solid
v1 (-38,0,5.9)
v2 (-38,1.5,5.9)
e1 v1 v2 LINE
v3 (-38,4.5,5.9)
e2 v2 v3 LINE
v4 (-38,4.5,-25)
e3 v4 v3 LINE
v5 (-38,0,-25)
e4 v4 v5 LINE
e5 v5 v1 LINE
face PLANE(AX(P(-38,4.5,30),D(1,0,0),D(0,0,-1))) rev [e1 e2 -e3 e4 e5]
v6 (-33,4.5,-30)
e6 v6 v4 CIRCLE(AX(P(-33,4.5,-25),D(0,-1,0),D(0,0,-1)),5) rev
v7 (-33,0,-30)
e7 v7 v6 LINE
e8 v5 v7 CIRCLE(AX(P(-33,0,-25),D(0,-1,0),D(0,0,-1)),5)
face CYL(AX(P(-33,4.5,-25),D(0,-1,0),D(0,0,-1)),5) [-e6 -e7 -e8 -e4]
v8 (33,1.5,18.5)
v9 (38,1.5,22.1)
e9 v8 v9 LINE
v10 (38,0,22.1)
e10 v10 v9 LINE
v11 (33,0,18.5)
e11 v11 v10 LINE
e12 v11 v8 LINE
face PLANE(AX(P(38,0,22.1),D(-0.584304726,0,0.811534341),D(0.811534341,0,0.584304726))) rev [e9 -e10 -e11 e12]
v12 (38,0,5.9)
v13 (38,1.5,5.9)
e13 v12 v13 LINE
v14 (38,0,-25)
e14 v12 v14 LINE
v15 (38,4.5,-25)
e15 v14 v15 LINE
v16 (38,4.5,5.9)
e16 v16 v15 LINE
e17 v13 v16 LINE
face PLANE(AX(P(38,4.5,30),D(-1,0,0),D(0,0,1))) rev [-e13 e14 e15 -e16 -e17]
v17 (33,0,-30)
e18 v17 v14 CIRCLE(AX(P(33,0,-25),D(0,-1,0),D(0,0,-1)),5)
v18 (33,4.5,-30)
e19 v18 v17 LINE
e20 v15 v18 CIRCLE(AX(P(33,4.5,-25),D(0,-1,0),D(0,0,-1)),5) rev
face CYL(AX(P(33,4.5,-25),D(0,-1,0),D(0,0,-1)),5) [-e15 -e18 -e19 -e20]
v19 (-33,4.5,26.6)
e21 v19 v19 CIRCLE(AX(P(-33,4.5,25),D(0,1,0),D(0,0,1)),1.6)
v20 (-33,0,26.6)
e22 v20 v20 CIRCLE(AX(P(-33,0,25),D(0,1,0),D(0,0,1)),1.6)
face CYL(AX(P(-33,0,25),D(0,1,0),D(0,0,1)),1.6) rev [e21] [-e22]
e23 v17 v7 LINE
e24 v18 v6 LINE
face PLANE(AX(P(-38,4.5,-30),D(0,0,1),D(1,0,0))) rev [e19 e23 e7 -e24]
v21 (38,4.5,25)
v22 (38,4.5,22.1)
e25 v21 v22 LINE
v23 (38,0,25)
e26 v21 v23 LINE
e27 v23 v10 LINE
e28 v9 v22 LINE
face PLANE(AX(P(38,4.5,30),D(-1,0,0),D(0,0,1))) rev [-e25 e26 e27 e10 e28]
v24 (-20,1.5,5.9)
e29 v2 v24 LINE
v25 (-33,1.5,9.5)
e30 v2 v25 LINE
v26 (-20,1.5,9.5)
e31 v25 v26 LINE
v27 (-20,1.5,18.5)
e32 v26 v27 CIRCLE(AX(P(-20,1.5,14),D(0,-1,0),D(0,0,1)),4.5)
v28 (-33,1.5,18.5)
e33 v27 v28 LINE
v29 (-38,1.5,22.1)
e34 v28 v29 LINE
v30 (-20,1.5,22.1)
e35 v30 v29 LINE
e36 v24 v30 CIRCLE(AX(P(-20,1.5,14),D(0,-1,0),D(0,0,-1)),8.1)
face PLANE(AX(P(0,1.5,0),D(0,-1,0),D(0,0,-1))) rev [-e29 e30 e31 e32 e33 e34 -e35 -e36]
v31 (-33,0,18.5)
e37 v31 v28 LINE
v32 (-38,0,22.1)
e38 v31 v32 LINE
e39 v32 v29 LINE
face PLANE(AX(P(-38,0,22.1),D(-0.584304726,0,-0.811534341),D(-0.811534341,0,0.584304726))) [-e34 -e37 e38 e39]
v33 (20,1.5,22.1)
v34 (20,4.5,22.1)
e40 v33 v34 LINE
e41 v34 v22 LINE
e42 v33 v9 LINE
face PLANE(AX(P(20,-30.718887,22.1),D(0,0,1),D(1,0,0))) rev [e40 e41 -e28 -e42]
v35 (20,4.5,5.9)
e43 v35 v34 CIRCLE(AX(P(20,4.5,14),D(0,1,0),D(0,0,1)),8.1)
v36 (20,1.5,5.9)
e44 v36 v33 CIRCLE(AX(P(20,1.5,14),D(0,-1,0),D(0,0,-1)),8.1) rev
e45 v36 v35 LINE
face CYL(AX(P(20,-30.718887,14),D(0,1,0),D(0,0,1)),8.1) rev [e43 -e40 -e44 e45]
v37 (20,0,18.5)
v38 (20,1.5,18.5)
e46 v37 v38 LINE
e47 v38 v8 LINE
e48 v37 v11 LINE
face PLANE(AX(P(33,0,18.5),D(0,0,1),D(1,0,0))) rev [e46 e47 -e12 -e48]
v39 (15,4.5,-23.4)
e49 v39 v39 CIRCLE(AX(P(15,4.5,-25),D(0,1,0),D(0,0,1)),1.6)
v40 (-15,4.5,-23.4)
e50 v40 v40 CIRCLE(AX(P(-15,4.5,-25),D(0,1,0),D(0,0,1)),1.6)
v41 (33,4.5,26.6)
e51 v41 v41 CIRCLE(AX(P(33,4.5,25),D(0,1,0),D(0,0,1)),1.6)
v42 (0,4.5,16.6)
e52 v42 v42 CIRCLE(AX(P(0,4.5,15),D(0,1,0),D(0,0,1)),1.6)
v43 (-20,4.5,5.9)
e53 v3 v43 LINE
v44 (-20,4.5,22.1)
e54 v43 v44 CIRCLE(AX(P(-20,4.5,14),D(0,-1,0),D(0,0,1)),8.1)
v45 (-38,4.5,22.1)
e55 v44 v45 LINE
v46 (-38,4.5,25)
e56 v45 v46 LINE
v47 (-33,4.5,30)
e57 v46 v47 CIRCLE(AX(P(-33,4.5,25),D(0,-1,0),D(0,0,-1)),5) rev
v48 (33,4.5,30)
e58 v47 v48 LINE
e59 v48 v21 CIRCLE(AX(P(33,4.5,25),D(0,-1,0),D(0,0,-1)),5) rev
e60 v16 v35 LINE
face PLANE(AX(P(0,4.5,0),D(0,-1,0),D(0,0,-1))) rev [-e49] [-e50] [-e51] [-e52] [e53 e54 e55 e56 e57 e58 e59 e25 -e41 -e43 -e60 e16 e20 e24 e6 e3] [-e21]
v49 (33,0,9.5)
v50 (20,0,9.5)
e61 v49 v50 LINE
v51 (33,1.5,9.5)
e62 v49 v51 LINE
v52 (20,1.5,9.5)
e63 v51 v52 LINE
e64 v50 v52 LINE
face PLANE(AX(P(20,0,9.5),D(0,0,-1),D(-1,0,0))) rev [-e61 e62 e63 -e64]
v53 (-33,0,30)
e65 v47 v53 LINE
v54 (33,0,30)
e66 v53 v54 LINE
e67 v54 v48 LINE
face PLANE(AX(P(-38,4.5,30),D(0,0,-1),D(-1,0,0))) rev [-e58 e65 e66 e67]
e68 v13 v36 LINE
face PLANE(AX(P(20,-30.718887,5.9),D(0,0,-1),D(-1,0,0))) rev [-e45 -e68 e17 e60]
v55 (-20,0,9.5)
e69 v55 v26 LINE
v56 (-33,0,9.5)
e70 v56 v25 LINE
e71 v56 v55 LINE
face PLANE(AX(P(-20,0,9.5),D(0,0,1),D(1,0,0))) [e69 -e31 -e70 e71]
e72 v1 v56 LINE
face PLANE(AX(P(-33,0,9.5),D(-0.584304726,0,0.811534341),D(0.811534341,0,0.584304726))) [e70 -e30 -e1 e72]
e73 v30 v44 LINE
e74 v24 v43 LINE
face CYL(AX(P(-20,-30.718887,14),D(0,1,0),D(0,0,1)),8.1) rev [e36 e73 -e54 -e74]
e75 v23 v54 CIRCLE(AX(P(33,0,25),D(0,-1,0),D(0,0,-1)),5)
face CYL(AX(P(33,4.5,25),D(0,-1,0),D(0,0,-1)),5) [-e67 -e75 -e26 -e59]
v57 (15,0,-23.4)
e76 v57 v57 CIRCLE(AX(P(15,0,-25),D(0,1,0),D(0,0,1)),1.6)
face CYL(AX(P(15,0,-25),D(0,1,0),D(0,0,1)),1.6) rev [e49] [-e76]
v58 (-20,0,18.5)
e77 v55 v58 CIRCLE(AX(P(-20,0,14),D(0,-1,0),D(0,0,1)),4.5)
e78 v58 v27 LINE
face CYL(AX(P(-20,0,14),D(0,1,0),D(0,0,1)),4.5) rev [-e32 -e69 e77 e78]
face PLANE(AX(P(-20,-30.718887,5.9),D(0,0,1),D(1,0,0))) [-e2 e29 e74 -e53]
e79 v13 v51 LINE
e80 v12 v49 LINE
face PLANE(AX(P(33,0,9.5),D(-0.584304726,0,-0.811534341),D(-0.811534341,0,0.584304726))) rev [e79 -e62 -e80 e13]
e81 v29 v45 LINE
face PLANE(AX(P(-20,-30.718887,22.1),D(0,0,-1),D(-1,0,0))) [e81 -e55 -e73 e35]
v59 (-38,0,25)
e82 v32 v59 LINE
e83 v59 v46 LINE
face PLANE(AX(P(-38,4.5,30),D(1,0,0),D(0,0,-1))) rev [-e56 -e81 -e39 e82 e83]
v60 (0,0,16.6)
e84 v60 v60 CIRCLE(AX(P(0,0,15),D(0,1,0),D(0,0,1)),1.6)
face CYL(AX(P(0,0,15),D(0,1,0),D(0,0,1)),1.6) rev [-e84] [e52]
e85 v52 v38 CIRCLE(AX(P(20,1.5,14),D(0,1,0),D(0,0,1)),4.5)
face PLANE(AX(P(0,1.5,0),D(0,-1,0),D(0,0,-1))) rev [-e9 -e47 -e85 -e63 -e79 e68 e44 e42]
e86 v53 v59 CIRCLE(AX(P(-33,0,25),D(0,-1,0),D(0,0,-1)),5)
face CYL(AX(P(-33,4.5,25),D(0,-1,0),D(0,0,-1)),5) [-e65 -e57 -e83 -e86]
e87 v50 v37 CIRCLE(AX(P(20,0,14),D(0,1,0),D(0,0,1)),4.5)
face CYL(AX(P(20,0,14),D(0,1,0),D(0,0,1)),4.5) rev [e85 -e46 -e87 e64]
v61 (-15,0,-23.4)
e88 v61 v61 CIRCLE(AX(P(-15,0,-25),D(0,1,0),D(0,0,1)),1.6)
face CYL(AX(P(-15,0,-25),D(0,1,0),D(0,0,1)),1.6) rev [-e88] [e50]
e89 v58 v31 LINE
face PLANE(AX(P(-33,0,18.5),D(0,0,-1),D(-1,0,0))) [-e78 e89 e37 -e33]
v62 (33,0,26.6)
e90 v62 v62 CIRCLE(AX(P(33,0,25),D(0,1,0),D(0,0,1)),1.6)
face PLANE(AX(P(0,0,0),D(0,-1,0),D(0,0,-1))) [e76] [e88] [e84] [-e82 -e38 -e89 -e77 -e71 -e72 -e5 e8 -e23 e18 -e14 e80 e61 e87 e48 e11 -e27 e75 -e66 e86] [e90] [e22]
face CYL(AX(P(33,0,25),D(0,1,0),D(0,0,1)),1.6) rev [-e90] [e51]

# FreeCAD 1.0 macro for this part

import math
import FreeCAD as App
import Part
import Sketcher
from FreeCAD import Vector


def edges_at(feature, points):
    """Names of the edges that pass closest to the given points."""
    edges = feature.Shape.Edges
    near = lambda p: min(range(len(edges)), key=lambda i: edges[i].distToShape(Part.Vertex(*p))[0])
    return sorted({f"Edge{near(p) + 1}" for p in points})


def add_polygon(sketch, points):
    """Adds a closed chain of lines whose ends are joined by coincident constraints."""
    first, n = sketch.GeometryCount, len(points)
    for a, b in zip(points, points[1:] + points[:1]):
        sketch.addGeometry(Part.LineSegment(App.Vector(*a, 0), App.Vector(*b, 0)), False)
    for i in range(n):
        sketch.addConstraint(Sketcher.Constraint("Coincident", first + i, 2, first + (i + 1) % n, 1))

doc = App.newDocument("Part")
body = doc.addObject("PartDesign::Body", "Body")

sketch1 = body.newObject("Sketcher::SketchObject", "Sketch")
sketch1.AttachmentSupport = (doc.getObject("XZ_Plane"), [""])
sketch1.MapMode = "FlatFace"
add_polygon(sketch1, [(-38, -30), (-38, 30), (38, 30), (38, -30)])
sketch1.addConstraint([
    Sketcher.Constraint("Vertical", 0),
    Sketcher.Constraint("Horizontal", 1),
    Sketcher.Constraint("Vertical", 2),
    Sketcher.Constraint("Horizontal", 3),
    Sketcher.Constraint("Symmetric", 0, 2, 2, 2, -1, 1),
    Sketcher.Constraint("DistanceX", 1, 1, 1, 2, 76.0),
    Sketcher.Constraint("DistanceY", 0, 1, 0, 2, 60.0),
])
pad1 = body.newObject("PartDesign::Pad", "Pad")
pad1.Profile = sketch1
pad1.Length = 4.5
pad1.Reversed = True

sketch2 = body.newObject("Sketcher::SketchObject", "Sketch001")
sketch2.AttachmentSupport = (doc.getObject("XZ_Plane"), [""])
sketch2.MapMode = "FlatFace"
sketch2.AttachmentOffset = App.Placement(Vector(0, 0, -4.5), App.Rotation())
sketch2.addGeometry([
    Part.LineSegment(Vector(38, 6, 0), Vector(20, 6, 0)),
    Part.ArcOfCircle(Part.Circle(Vector(20, 14, 0), Vector(0, 0, 1), 8), math.radians(90), math.radians(270)),
    Part.LineSegment(Vector(20, 22, 0), Vector(38, 22, 0)),
    Part.LineSegment(Vector(38, 22, 0), Vector(38, 6, 0)),
], False)
sketch2.addConstraint([
    Sketcher.Constraint("Tangent", 0, 2, 1, 2),
    Sketcher.Constraint("Tangent", 1, 1, 2, 1),
    Sketcher.Constraint("Coincident", 2, 2, 3, 1),
    Sketcher.Constraint("Coincident", 3, 2, 0, 1),
    Sketcher.Constraint("Horizontal", 0),
    Sketcher.Constraint("Horizontal", 2),
    Sketcher.Constraint("Vertical", 3),
    Sketcher.Constraint("Radius", 1, 8.1),
    Sketcher.Constraint("DistanceX", 0, 2, 0, 1, 18.0),
    Sketcher.Constraint("DistanceX", -1, 1, 1, 3, 20.0),
    Sketcher.Constraint("DistanceY", -1, 1, 1, 3, 14.0),
])
pocket1 = body.newObject("PartDesign::Pocket", "Pocket")
pocket1.Profile = sketch2
pocket1.Length = 3
pocket1.Reversed = True

sketch3 = body.newObject("Sketcher::SketchObject", "Sketch002")
sketch3.AttachmentSupport = (doc.getObject("XZ_Plane"), [""])
sketch3.MapMode = "FlatFace"
sketch3.AttachmentOffset = App.Placement(Vector(0, 0, -1.5), App.Rotation())
sketch3.addGeometry([
    Part.LineSegment(Vector(33, 9.5, 0), Vector(20, 9.5, 0)),
    Part.ArcOfCircle(Part.Circle(Vector(20, 14, 0), Vector(0, 0, 1), 4.5), math.radians(90), math.radians(270)),
    Part.LineSegment(Vector(20, 18.5, 0), Vector(33, 18.5, 0)),
    Part.LineSegment(Vector(33, 18.5, 0), Vector(38, 22.1, 0)),
    Part.LineSegment(Vector(38, 22.1, 0), Vector(38, 5.9, 0)),
    Part.LineSegment(Vector(38, 5.9, 0), Vector(33, 9.5, 0)),
], False)
sketch3.addConstraint([
    Sketcher.Constraint("Tangent", 0, 2, 1, 2),
    Sketcher.Constraint("Tangent", 1, 1, 2, 1),
    Sketcher.Constraint("Coincident", 2, 2, 3, 1),
    Sketcher.Constraint("Coincident", 3, 2, 4, 1),
    Sketcher.Constraint("Coincident", 4, 2, 5, 1),
    Sketcher.Constraint("Coincident", 5, 2, 0, 1),
    Sketcher.Constraint("Horizontal", 0),
    Sketcher.Constraint("Horizontal", 2),
    Sketcher.Constraint("Vertical", 4),
    Sketcher.Constraint("Vertical", 2, 2, 5, 2),
    Sketcher.Constraint("Equal", 3, 5),
    Sketcher.Constraint("Radius", 1, 4.5),
    Sketcher.Constraint("DistanceX", 0, 2, 0, 1, 13.0),
    Sketcher.Constraint("DistanceY", 4, 2, 4, 1, 16.2),
    Sketcher.Constraint("DistanceX", -1, 1, 1, 3, 20.0),
    Sketcher.Constraint("DistanceY", -1, 1, 1, 3, 14.0),
    Sketcher.Constraint("DistanceX", -1, 1, 3, 2, 38.0),
])
pocket2 = body.newObject("PartDesign::Pocket", "Pocket001")
pocket2.Profile = sketch3
pocket2.Type = "ThroughAll"
pocket2.Reversed = True
doc.recompute()

mirrored = body.newObject("PartDesign::Mirrored", "Mirrored")
mirrored.Originals = [pocket1, pocket2]
mirrored.MirrorPlane = (doc.getObject("YZ_Plane"), [""])
body.Tip = mirrored
doc.recompute()

fillet = body.newObject("PartDesign::Fillet", "Fillet")
fillet.Base = (mirrored, edges_at(mirrored, [
    (38, 2.25, 30),
    (-38, 2.25, 30),
    (-38, 2.25, -30),
    (38, 2.25, -30),
]))
fillet.Radius = 5

sketch4 = body.newObject("Sketcher::SketchObject", "Sketch003")
sketch4.AttachmentSupport = (doc.getObject("XZ_Plane"), [""])
sketch4.MapMode = "FlatFace"
sketch4.AttachmentOffset = App.Placement(Vector(0, 0, -4.5), App.Rotation())
sketch4.addGeometry([
    Part.Circle(Vector(-15, -25, 0), Vector(0, 0, 1), 1.6),
    Part.Circle(Vector(15, -25, 0), Vector(0, 0, 1), 1.6),
    Part.Circle(Vector(33, 25, 0), Vector(0, 0, 1), 1.6),
    Part.Circle(Vector(-33, 25, 0), Vector(0, 0, 1), 1.6),
    Part.Circle(Vector(0, 15, 0), Vector(0, 0, 1), 1.6),
], False)
sketch4.addConstraint([
    Sketcher.Constraint("Equal", 0, 1),
    Sketcher.Constraint("Equal", 1, 2),
    Sketcher.Constraint("Equal", 2, 3),
    Sketcher.Constraint("Equal", 3, 4),
    Sketcher.Constraint("Symmetric", 0, 3, 1, 3, -2),
    Sketcher.Constraint("Symmetric", 2, 3, 3, 3, -2),
    Sketcher.Constraint("PointOnObject", 4, 3, -2),
    Sketcher.Constraint("Diameter", 0, 3.2),
    Sketcher.Constraint("DistanceX", 0, 3, -1, 1, 15.0),
    Sketcher.Constraint("DistanceY", 0, 3, -1, 1, 25.0),
    Sketcher.Constraint("DistanceX", -1, 1, 2, 3, 33.0),
    Sketcher.Constraint("DistanceY", -1, 1, 2, 3, 25.0),
    Sketcher.Constraint("DistanceY", -1, 1, 4, 3, 15.0),
])
pocket3 = body.newObject("PartDesign::Pocket", "Pocket002")
pocket3.Profile = sketch4
pocket3.Type = "ThroughAll"
pocket3.Reversed = True

doc.recompute()
